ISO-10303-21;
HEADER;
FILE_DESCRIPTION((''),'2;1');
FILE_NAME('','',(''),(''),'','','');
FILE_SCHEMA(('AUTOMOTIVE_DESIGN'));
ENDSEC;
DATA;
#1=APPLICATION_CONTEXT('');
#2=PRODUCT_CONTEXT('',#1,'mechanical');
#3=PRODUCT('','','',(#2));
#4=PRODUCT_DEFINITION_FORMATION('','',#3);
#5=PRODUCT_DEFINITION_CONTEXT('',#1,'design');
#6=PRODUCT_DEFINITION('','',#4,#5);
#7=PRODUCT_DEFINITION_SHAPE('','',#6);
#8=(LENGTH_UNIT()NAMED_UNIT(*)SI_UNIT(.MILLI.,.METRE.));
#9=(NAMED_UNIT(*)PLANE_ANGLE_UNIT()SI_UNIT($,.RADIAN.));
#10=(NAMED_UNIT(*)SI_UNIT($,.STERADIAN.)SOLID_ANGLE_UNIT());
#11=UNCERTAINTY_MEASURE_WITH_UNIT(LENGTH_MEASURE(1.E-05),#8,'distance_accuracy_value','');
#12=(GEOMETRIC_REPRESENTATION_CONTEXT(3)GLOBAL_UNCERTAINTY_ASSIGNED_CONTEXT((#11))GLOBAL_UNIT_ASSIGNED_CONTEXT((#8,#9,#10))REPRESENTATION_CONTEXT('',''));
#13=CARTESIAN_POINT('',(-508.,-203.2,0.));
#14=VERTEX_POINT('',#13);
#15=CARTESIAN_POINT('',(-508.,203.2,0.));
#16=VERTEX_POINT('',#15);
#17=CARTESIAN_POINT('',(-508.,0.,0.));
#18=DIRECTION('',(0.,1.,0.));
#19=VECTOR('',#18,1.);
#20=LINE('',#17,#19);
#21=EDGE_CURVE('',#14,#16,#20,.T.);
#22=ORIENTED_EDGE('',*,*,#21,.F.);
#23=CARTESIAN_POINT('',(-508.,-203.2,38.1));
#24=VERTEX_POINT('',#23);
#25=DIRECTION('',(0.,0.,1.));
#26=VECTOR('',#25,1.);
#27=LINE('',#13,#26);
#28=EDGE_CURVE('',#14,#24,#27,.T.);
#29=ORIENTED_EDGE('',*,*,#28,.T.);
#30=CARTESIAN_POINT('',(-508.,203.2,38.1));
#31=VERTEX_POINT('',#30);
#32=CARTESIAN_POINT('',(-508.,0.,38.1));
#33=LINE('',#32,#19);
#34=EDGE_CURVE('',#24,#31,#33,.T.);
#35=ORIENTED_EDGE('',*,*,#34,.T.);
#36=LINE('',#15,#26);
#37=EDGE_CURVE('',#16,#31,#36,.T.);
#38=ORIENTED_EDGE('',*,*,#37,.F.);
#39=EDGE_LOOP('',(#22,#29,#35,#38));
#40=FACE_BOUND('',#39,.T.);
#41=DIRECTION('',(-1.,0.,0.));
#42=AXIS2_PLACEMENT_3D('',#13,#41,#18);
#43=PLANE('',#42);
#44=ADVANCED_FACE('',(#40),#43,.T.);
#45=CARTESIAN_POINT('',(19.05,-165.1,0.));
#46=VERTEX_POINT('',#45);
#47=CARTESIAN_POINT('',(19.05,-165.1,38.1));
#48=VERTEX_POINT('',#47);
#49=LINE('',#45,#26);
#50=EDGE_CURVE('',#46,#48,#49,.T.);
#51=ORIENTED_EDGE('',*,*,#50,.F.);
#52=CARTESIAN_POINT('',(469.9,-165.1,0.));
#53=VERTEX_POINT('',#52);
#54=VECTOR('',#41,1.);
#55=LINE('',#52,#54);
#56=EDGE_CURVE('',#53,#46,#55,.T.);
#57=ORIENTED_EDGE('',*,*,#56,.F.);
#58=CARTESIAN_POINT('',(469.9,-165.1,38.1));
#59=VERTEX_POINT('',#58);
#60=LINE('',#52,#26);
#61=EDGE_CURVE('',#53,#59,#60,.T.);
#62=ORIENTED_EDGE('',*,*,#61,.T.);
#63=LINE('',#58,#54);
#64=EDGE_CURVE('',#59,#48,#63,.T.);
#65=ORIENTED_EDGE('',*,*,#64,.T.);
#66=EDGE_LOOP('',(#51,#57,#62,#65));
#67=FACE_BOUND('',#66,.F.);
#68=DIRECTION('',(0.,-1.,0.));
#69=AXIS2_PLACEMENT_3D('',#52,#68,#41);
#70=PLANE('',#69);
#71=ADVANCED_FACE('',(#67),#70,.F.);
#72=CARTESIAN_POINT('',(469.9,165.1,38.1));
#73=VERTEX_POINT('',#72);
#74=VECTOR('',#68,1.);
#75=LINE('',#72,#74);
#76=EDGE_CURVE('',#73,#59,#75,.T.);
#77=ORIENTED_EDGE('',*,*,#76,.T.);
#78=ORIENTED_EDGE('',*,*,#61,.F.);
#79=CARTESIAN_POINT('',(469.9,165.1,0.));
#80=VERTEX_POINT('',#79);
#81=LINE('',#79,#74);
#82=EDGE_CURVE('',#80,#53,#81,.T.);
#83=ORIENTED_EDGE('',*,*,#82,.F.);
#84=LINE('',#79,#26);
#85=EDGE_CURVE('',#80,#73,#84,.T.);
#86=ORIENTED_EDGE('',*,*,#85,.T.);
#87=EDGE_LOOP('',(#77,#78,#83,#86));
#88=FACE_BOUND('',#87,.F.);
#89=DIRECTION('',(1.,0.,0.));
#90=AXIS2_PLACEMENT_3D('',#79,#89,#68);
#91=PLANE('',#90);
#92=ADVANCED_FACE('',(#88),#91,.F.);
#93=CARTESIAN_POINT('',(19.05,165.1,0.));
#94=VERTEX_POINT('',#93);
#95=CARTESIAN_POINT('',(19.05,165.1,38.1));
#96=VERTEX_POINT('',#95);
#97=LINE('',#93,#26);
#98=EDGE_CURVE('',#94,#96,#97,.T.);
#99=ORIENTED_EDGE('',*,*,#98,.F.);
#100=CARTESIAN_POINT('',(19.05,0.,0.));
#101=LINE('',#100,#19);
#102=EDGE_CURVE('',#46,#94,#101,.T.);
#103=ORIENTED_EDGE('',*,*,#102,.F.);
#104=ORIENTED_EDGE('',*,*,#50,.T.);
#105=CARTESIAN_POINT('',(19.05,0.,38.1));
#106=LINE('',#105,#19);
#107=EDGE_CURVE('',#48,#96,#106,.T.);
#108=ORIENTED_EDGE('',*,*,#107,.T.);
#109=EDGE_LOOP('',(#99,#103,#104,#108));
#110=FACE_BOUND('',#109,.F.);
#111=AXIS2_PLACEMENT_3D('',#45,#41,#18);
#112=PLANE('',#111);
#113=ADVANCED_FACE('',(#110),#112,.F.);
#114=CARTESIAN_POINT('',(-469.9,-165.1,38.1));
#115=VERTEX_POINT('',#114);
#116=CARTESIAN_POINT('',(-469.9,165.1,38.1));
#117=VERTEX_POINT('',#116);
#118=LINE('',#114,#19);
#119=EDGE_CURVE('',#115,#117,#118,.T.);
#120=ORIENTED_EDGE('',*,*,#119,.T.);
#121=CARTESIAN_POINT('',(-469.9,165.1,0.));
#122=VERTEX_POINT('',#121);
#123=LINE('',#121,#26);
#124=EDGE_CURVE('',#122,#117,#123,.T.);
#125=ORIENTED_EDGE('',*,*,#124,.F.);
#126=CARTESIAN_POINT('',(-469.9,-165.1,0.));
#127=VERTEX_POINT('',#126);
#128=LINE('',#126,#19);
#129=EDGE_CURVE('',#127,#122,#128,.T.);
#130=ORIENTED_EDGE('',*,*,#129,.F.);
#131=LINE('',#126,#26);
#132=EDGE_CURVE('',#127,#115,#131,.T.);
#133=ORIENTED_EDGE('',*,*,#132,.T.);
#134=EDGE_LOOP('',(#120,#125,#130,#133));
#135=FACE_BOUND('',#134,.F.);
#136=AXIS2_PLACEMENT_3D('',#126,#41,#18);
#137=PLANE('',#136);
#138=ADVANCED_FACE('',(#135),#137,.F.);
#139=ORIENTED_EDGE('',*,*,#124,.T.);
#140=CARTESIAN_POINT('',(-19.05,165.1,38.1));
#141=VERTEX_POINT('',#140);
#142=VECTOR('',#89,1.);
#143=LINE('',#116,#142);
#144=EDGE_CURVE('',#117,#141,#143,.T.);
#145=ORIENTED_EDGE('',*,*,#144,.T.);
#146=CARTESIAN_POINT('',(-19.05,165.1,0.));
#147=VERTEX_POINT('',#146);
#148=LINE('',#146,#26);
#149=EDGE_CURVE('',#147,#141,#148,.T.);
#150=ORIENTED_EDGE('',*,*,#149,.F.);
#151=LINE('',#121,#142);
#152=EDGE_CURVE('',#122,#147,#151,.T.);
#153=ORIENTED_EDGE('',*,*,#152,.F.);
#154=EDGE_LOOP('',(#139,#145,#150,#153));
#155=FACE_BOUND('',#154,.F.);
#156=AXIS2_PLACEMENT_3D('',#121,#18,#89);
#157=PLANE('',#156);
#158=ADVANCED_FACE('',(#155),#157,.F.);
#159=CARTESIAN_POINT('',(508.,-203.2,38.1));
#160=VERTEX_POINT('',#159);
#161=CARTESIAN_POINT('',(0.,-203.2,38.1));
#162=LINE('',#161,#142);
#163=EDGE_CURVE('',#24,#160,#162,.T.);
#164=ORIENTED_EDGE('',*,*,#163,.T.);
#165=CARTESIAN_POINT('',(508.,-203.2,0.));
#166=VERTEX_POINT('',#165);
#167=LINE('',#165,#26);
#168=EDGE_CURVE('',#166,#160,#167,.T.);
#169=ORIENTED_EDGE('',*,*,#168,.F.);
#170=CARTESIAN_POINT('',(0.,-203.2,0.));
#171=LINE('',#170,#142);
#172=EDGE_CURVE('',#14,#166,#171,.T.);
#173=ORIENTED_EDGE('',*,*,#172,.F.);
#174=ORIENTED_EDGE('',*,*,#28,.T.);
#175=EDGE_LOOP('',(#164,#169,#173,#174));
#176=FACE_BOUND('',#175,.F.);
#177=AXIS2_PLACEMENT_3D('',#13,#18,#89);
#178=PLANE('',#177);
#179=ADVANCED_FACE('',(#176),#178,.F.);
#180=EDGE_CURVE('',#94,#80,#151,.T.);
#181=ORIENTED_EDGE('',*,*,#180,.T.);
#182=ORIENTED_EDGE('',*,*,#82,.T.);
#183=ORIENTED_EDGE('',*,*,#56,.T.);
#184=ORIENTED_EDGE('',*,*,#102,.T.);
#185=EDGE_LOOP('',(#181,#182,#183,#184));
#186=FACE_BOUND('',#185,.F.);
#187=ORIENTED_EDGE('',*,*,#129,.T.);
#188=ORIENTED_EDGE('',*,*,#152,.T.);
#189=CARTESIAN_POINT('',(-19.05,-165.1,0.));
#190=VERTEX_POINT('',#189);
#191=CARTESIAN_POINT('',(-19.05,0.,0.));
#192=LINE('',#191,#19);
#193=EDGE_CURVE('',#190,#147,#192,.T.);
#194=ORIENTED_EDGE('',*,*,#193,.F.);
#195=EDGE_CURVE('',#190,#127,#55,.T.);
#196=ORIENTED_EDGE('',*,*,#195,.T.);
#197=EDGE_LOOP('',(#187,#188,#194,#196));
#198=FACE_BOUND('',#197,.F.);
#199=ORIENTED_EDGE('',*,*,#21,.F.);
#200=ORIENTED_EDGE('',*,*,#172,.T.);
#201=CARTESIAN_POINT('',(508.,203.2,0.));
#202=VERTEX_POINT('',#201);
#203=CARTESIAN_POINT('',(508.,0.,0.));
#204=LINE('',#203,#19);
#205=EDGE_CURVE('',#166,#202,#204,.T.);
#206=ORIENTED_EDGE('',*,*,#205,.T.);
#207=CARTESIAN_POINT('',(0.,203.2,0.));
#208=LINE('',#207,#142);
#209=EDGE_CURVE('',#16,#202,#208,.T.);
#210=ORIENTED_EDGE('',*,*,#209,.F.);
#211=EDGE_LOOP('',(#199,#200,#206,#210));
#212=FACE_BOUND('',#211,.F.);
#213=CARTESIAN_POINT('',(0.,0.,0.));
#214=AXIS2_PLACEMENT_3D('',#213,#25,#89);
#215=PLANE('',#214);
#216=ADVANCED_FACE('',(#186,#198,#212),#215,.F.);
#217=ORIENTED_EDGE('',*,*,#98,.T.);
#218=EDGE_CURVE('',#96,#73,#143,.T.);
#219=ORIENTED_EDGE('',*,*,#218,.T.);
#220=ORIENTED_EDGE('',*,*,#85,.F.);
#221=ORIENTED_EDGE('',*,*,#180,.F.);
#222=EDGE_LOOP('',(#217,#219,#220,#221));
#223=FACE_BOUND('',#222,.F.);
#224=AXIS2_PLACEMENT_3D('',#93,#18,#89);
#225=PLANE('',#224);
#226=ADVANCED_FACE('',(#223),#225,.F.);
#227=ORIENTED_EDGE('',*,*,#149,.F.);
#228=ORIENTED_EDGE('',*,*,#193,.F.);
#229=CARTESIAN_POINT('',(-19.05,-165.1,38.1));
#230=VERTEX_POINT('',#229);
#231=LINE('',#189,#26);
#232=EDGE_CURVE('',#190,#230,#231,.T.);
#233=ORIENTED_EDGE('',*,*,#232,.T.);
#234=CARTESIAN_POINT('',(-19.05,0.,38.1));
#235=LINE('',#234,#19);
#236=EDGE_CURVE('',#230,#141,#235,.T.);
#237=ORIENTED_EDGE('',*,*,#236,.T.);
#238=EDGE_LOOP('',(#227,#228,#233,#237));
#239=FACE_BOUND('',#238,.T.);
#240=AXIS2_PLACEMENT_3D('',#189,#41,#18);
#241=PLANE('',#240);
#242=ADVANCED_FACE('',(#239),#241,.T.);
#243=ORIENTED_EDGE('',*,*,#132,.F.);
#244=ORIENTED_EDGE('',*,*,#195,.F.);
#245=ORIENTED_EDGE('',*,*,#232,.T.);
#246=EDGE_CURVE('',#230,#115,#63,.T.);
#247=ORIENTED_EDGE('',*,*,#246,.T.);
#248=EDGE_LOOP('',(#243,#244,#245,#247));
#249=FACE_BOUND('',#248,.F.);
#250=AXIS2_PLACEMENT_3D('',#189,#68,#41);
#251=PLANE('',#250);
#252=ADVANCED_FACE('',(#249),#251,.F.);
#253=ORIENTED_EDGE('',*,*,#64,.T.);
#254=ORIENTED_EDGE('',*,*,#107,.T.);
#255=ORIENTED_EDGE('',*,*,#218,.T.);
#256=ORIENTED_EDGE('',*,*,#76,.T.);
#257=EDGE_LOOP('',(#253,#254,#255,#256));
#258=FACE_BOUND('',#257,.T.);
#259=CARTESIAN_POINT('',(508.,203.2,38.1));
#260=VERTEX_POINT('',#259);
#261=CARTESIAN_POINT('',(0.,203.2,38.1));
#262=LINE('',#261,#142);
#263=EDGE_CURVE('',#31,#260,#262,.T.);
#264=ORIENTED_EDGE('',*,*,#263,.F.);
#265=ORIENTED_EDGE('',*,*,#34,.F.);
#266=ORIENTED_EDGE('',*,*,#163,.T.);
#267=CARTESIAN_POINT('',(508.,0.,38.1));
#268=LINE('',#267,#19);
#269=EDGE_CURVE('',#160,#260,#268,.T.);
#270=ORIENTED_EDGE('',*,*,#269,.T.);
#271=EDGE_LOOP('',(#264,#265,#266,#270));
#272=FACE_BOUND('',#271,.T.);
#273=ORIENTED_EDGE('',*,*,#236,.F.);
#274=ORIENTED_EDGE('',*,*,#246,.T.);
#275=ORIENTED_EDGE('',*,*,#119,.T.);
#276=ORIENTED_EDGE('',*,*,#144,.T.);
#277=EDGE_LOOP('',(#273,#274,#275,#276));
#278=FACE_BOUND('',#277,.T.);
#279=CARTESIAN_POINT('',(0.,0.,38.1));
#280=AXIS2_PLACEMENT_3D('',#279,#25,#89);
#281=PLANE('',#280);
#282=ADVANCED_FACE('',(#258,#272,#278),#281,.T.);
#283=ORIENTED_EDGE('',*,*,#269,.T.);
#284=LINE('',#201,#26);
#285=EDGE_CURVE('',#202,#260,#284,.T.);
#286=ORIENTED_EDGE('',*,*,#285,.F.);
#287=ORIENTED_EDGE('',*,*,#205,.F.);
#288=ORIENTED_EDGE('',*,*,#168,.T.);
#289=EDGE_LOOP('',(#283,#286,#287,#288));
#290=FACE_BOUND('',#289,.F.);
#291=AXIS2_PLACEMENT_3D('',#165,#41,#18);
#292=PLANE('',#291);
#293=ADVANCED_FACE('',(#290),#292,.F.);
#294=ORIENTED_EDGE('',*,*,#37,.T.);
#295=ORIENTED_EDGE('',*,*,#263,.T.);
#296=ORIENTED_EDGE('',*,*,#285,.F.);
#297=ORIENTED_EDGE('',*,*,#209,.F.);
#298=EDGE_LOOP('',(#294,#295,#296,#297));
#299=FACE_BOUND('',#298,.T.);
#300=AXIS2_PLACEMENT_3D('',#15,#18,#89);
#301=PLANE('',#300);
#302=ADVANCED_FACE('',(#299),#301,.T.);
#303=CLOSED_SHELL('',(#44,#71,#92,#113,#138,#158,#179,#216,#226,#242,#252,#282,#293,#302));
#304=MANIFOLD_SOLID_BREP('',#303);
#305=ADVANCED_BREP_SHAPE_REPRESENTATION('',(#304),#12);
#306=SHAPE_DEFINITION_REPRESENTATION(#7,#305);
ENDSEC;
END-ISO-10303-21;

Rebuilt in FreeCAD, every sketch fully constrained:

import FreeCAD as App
import Part
import Sketcher
Q = App.Units.Quantity


def add_polygon(sketch, points):
    """Adds a closed chain of lines whose ends are joined by coincident constraints."""
    first, n = sketch.GeometryCount, len(points)
    for a, b in zip(points, points[1:] + points[:1]):
        sketch.addGeometry(Part.LineSegment(App.Vector(*a, 0), App.Vector(*b, 0)), False)
    for i in range(n):
        sketch.addConstraint(Sketcher.Constraint("Coincident", first + i, 2, first + (i + 1) % n, 1))

doc = App.newDocument("Part")
body = doc.addObject("PartDesign::Body", "Body")

# Sketch on XY plane
sketch1 = body.newObject("Sketcher::SketchObject", "Sketch")
sketch1.AttachmentSupport = (doc.getObject("XY_Plane"), [""])
sketch1.MapMode = "FlatFace"
add_polygon(sketch1, [(-508, 203.2), (-508, -203.2), (508, -203.2), (508, 203.2)])  # lines 0-3
add_polygon(sketch1, [(-469.9, 165.1), (-19.05, 165.1), (-19.05, -165.1), (-469.9, -165.1)])  # lines 4-7
add_polygon(sketch1, [(19.05, 165.1), (469.9, 165.1), (469.9, -165.1), (19.05, -165.1)])  # lines 8-11
sketch1.addConstraint(Sketcher.Constraint("Vertical", 0))
sketch1.addConstraint(Sketcher.Constraint("Horizontal", 1))
sketch1.addConstraint(Sketcher.Constraint("Vertical", 2))
sketch1.addConstraint(Sketcher.Constraint("Horizontal", 3))
sketch1.addConstraint(Sketcher.Constraint("Horizontal", 4))
sketch1.addConstraint(Sketcher.Constraint("Vertical", 5))
sketch1.addConstraint(Sketcher.Constraint("Horizontal", 6))
sketch1.addConstraint(Sketcher.Constraint("Vertical", 7))
sketch1.addConstraint(Sketcher.Constraint("Horizontal", 8))
sketch1.addConstraint(Sketcher.Constraint("Vertical", 9))
sketch1.addConstraint(Sketcher.Constraint("Horizontal", 10))
sketch1.addConstraint(Sketcher.Constraint("Vertical", 11))
sketch1.addConstraint(Sketcher.Constraint("Symmetric", 0, 2, 2, 2, -1, 1))
sketch1.addConstraint(Sketcher.Constraint("Symmetric", 6, 2, 8, 2, -1, 1))
sketch1.addConstraint(Sketcher.Constraint("Symmetric", 4, 2, 10, 2, -1, 1))
sketch1.addConstraint(Sketcher.Constraint("Horizontal", 7, 2, 8, 2))
sketch1.addConstraint(Sketcher.Constraint("DistanceX", 1, 1, 1, 2, Q("40 in")))
sketch1.addConstraint(Sketcher.Constraint("DistanceY", 0, 2, 0, 1, Q("16 in")))
sketch1.addConstraint(Sketcher.Constraint("DistanceY", 5, 2, 5, 1, Q("13 in")))
sketch1.addConstraint(Sketcher.Constraint("DistanceX", 7, 2, 8, 2, Q("37 in")))
sketch1.addConstraint(Sketcher.Constraint("DistanceX", 4, 1, 4, 2, Q("17.75 in")))
pad1 = body.newObject("PartDesign::Pad", "Pad")
pad1.Profile = sketch1
pad1.Length = Q("1.5 in")

doc.recompute()
